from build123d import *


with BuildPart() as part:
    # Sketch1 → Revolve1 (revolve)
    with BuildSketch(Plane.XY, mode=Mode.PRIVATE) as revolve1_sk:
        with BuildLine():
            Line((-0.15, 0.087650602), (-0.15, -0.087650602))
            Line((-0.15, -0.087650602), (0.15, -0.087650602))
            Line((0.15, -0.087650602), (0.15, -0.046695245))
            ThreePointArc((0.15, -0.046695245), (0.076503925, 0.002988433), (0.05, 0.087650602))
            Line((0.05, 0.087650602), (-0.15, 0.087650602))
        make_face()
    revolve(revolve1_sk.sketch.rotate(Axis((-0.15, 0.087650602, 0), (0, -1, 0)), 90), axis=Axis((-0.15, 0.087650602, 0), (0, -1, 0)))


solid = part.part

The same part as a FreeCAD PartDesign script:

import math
import FreeCAD as App
import Part
import Sketcher
from FreeCAD import Vector
Q = App.Units.Quantity

doc = App.newDocument("Part")
body = doc.addObject("PartDesign::Body", "Body")

sketch1 = body.newObject("Sketcher::SketchObject", "Sketch")
sketch1.AttachmentSupport = (doc.getObject("XY_Plane"), [""])
sketch1.MapMode = "FlatFace"
sketch1.addGeometry(Part.LineSegment(Vector(-0.15, 0.088, 0), Vector(-0.15, -0.088, 0)), False)
sketch1.addGeometry(Part.LineSegment(Vector(-0.15, -0.088, 0), Vector(0.15, -0.088, 0)), False)
sketch1.addGeometry(Part.LineSegment(Vector(0.15, -0.088, 0), Vector(0.15, -0.047, 0)), False)
sketch1.addGeometry(Part.ArcOfCircle(Part.Circle(Vector(0.184, 0.083, 0), Vector(0, 0, 1), 0.134), math.radians(178), math.radians(255)), False)
sketch1.addGeometry(Part.LineSegment(Vector(0.05, 0.088, 0), Vector(-0.15, 0.088, 0)), False)
sketch1.addGeometry(Part.LineSegment(Vector(-0.15, 0.088, 0), Vector(-0.15, -0.088, 0)), True)
sketch1.addConstraint(Sketcher.Constraint("Coincident", 0, 2, 1, 1))
sketch1.addConstraint(Sketcher.Constraint("Coincident", 1, 2, 2, 1))
sketch1.addConstraint(Sketcher.Constraint("Coincident", 2, 2, 3, 2))
sketch1.addConstraint(Sketcher.Constraint("Coincident", 3, 1, 4, 1))
sketch1.addConstraint(Sketcher.Constraint("Coincident", 4, 2, 0, 1))
sketch1.addConstraint(Sketcher.Constraint("Vertical", 0))
sketch1.addConstraint(Sketcher.Constraint("Horizontal", 1))
sketch1.addConstraint(Sketcher.Constraint("Vertical", 2))
sketch1.addConstraint(Sketcher.Constraint("Horizontal", 4))
sketch1.addConstraint(Sketcher.Constraint("Vertical", 5))
sketch1.addConstraint(Sketcher.Constraint("Coincident", 5, 1, 4, 2))
sketch1.addConstraint(Sketcher.Constraint("Symmetric", 1, 2, 4, 2, -1, 1))
sketch1.addConstraint(Sketcher.Constraint("Horizontal", 1, 2, 5, 2))
sketch1.addConstraint(Sketcher.Constraint("DistanceX", 1, 1, 1, 2, Q("0.3 mm")))
sketch1.addConstraint(Sketcher.Constraint("DistanceX", 4, 2, 4, 1, Q("0.2 mm")))
sketch1.addConstraint(Sketcher.Constraint("DistanceY", 0, 2, 0, 1, Q("0.175301 mm")))
sketch1.addConstraint(Sketcher.Constraint("Radius", 3, Q("0.134346 mm")))
sketch1.addConstraint(Sketcher.Constraint("DistanceY", 2, 1, 2, 2, Q("0.040955 mm")))
revolution = body.newObject("PartDesign::Revolution", "Revolution")
revolution.Profile = sketch1
revolution.ReferenceAxis = (sketch1, ["Axis0"])
revolution.Angle = 360

doc.recompute()
